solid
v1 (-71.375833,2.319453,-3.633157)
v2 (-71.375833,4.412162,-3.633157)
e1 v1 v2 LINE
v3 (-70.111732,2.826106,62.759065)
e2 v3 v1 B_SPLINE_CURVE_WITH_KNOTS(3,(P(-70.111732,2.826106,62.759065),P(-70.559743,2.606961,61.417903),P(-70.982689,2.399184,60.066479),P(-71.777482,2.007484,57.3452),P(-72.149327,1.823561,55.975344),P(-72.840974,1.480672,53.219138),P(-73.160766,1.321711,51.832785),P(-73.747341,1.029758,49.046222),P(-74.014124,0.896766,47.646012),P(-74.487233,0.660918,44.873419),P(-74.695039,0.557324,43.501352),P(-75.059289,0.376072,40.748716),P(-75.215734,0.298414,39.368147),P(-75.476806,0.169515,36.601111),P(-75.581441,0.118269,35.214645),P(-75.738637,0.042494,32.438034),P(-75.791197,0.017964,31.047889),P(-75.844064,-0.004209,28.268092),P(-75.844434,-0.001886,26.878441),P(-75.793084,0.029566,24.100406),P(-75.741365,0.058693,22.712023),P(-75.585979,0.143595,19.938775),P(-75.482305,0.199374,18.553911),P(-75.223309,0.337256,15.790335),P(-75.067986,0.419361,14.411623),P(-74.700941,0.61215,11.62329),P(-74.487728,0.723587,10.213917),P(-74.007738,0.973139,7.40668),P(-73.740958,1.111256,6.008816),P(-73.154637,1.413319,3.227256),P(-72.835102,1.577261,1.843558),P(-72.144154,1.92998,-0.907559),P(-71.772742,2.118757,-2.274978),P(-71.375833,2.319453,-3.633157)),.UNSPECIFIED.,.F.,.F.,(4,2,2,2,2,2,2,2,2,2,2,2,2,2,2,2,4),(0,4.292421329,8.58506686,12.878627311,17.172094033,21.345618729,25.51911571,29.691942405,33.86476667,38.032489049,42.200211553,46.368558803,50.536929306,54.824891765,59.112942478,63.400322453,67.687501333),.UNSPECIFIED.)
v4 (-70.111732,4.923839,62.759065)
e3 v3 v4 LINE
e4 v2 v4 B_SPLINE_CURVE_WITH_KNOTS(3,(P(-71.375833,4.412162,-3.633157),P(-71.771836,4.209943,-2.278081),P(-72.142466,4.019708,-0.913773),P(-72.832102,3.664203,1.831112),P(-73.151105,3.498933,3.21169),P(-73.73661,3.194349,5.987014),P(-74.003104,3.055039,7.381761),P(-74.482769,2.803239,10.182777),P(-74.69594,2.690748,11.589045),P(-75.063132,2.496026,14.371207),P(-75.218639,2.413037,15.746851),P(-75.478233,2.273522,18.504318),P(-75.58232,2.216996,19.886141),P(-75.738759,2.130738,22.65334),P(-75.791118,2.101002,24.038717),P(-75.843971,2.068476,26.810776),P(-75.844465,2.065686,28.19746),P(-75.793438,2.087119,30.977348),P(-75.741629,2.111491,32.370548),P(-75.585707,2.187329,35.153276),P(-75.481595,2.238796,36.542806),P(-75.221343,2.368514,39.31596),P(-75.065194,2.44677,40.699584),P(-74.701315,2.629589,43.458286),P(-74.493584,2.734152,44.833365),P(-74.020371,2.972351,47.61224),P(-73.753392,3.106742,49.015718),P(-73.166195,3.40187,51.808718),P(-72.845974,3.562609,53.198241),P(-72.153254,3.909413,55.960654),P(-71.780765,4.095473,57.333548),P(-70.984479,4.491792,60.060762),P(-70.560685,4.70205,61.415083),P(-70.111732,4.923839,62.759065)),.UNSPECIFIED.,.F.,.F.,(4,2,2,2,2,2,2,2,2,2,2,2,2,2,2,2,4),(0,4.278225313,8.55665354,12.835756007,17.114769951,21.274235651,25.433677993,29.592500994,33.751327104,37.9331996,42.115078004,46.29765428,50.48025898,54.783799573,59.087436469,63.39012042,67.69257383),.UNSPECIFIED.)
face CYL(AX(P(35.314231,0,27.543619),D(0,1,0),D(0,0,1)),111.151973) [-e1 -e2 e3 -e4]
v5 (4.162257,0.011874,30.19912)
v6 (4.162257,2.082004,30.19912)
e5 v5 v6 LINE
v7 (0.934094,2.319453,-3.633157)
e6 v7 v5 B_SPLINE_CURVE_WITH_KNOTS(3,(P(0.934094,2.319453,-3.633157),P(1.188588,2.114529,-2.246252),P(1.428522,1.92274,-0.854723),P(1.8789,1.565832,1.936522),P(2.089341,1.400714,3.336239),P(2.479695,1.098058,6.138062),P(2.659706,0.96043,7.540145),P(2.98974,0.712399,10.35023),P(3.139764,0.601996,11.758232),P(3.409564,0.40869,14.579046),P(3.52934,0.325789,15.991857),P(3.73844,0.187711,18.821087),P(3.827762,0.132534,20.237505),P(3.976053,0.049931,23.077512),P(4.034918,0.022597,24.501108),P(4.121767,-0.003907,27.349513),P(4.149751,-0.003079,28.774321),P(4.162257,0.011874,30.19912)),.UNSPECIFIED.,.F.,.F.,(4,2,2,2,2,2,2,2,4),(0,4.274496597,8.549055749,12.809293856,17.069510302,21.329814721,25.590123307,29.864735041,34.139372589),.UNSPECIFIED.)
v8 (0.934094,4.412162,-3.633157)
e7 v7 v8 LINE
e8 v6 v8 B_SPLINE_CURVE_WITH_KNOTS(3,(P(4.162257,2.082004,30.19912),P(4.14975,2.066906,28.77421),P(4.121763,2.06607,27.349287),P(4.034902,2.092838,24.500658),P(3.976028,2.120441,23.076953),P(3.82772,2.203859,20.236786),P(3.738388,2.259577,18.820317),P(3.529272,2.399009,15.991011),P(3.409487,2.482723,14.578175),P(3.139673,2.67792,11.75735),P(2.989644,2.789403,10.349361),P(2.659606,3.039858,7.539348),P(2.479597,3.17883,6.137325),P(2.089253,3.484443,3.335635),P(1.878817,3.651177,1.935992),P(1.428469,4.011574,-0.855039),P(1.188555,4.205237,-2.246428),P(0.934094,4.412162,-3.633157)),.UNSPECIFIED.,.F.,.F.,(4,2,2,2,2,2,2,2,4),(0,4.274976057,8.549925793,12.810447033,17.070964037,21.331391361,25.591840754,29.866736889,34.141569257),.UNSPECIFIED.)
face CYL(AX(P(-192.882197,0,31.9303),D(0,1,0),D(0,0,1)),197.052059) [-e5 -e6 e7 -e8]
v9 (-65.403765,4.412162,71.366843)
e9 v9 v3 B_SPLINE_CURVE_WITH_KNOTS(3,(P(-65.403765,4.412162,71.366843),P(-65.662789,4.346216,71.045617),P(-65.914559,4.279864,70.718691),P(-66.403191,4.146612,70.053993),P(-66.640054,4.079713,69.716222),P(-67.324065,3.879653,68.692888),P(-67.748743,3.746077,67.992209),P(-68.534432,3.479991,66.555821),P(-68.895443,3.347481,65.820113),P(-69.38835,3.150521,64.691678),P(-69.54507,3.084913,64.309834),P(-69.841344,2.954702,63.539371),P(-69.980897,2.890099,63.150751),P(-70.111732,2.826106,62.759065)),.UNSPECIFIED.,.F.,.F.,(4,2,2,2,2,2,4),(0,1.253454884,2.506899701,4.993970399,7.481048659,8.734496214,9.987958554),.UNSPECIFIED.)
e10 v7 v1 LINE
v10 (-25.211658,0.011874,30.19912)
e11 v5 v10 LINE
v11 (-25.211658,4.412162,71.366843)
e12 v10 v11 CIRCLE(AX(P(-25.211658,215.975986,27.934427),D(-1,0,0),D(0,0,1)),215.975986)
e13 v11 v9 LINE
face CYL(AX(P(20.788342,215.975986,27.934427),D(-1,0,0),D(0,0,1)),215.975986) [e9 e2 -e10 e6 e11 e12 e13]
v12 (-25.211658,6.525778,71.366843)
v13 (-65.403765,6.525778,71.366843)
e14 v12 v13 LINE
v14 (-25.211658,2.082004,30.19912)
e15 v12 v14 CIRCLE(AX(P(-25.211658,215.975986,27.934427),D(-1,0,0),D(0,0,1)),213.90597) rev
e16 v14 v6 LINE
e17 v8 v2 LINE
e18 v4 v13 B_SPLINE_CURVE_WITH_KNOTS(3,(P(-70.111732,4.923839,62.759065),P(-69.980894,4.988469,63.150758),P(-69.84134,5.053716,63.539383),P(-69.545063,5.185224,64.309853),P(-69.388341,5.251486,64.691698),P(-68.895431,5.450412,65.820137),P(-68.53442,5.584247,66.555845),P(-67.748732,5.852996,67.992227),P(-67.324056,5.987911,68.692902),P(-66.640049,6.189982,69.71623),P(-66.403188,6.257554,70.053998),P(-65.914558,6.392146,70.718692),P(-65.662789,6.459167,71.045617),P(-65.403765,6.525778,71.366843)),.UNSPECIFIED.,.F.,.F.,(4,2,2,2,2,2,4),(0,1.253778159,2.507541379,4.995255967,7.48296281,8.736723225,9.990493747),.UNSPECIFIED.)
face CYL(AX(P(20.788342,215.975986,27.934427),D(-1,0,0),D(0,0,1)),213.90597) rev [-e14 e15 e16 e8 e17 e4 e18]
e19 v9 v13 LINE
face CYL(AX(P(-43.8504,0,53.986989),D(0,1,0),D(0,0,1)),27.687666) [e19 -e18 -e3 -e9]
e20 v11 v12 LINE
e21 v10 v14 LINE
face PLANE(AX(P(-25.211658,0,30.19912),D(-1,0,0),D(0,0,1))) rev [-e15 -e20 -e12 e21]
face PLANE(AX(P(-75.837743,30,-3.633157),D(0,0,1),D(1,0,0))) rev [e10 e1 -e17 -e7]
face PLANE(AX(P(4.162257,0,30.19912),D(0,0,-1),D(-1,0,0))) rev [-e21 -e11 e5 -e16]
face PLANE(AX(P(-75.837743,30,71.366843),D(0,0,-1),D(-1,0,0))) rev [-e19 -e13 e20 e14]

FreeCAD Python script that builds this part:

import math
import FreeCAD as App
import Part
import Sketcher
Q = App.Units.Quantity


def add_polygon(sketch, points):
    """Adds a closed chain of lines whose ends are joined by coincident constraints."""
    first, n = sketch.GeometryCount, len(points)
    for a, b in zip(points, points[1:] + points[:1]):
        sketch.addGeometry(Part.LineSegment(App.Vector(*a, 0), App.Vector(*b, 0)), False)
    for i in range(n):
        sketch.addConstraint(Sketcher.Constraint("Coincident", first + i, 2, first + (i + 1) % n, 1))

doc = App.newDocument("Part")
params = doc.addObject("Spreadsheet::Sheet", "Params")
for row, (alias, value) in enumerate([
    ("sketch1_width", "80 mm"),
    ("sketch1_height", "75 mm"),
    ("pad1_length", "30 mm"),
    ("pocket1_length", "30 mm"),
], start=1):
    params.set(f"A{row}", alias)
    params.set(f"B{row}", "=" + value)
    params.setAlias(f"B{row}", alias)

body = doc.addObject("PartDesign::Body", "Body")

# Sketch on XZ plane
sketch1 = body.newObject("Sketcher::SketchObject", "Sketch")
sketch1.AttachmentSupport = (doc.getObject("XZ_Plane"), [""])
sketch1.MapMode = "FlatFace"
add_polygon(sketch1, [(-76, -4), (-76, 71), (4, 71), (4, -4)])  # lines 0-3
sketch1.addConstraint(Sketcher.Constraint("Vertical", 0))
sketch1.addConstraint(Sketcher.Constraint("Horizontal", 1))
sketch1.addConstraint(Sketcher.Constraint("Vertical", 2))
sketch1.addConstraint(Sketcher.Constraint("Horizontal", 3))
sketch1.addConstraint(Sketcher.Constraint("DistanceX", 1, 1, 1, 2, Q("80 mm")))
sketch1.addConstraint(Sketcher.Constraint("DistanceY", 0, 1, 0, 2, Q("75 mm")))
sketch1.addConstraint(Sketcher.Constraint("DistanceX", 0, 2, -1, 1, Q("75.837743 mm")))
sketch1.addConstraint(Sketcher.Constraint("DistanceY", -1, 1, 0, 2, Q("71.366843 mm")))
sketch1.setExpression("Constraints[8]", "Params.sketch1_width")
sketch1.setExpression("Constraints[9]", "Params.sketch1_height")
pad1 = body.newObject("PartDesign::Pad", "Pad")
pad1.Profile = sketch1
pad1.setExpression("Length", "Params.pad1_length")
pad1.Reversed = True

# Sketch on XZ plane
sketch2 = body.newObject("Sketcher::SketchObject", "Sketch001")
sketch2.AttachmentSupport = (doc.getObject("XZ_Plane"), [""])
sketch2.MapMode = "FlatFace"
sketch2.AttachmentOffset = App.Placement(App.Vector(0, 0, -30), App.Rotation())
sketch2.addGeometry(Part.LineSegment(App.Vector(-71, -4, 0), App.Vector(-109, -13, 0)), False)
sketch2.addGeometry(Part.LineSegment(App.Vector(-109, -13, 0), App.Vector(-126, 100, 0)), False)
sketch2.addGeometry(Part.LineSegment(App.Vector(-126, 100, 0), App.Vector(-11, 108, 0)), False)
sketch2.addGeometry(Part.LineSegment(App.Vector(-11, 108, 0), App.Vector(16, 76, 0)), False)
sketch2.addGeometry(Part.LineSegment(App.Vector(16, 76, 0), App.Vector(16, 32, 0)), False)
sketch2.addGeometry(Part.LineSegment(App.Vector(16, 32, 0), App.Vector(13, -8, 0)), False)
sketch2.addGeometry(Part.LineSegment(App.Vector(13, -8, 0), App.Vector(1, -4, 0)), False)
sketch2.addGeometry(Part.ArcOfCircle(Part.Circle(App.Vector(-193, 32, 0), App.Vector(0, 0, 1), 197), math.radians(-10.4), math.radians(-0.5)), False)
sketch2.addGeometry(Part.LineSegment(App.Vector(4, 30, 0), App.Vector(-25, 30, 0)), False)
sketch2.addGeometry(Part.LineSegment(App.Vector(-25, 30, 0), App.Vector(-25, 71, 0)), False)
sketch2.addGeometry(Part.LineSegment(App.Vector(-25, 71, 0), App.Vector(-65, 71, 0)), False)
sketch2.addGeometry(Part.ArcOfCircle(Part.Circle(App.Vector(-44, 54, 0), App.Vector(0, 0, 1), 28), math.radians(141), math.radians(162)), False)
sketch2.addGeometry(Part.ArcOfCircle(Part.Circle(App.Vector(35, 28, 0), App.Vector(0, 0, 1), 111), math.radians(162), math.radians(196)), False)
sketch2.addConstraint(Sketcher.Constraint("Coincident", 0, 2, 1, 1))
sketch2.addConstraint(Sketcher.Constraint("Coincident", 1, 2, 2, 1))
sketch2.addConstraint(Sketcher.Constraint("Coincident", 2, 2, 3, 1))
sketch2.addConstraint(Sketcher.Constraint("Coincident", 3, 2, 4, 1))
sketch2.addConstraint(Sketcher.Constraint("Coincident", 4, 2, 5, 1))
sketch2.addConstraint(Sketcher.Constraint("Coincident", 5, 2, 6, 1))
sketch2.addConstraint(Sketcher.Constraint("Coincident", 6, 2, 7, 1))
sketch2.addConstraint(Sketcher.Constraint("Coincident", 7, 2, 8, 1))
sketch2.addConstraint(Sketcher.Constraint("Coincident", 8, 2, 9, 1))
sketch2.addConstraint(Sketcher.Constraint("Coincident", 9, 2, 10, 1))
sketch2.addConstraint(Sketcher.Constraint("Coincident", 10, 2, 11, 1))
sketch2.addConstraint(Sketcher.Constraint("Tangent", 11, 2, 12, 1))
sketch2.addConstraint(Sketcher.Constraint("Coincident", 12, 2, 0, 1))
sketch2.addConstraint(Sketcher.Constraint("Vertical", 4))
sketch2.addConstraint(Sketcher.Constraint("Horizontal", 8))
sketch2.addConstraint(Sketcher.Constraint("Vertical", 9))
sketch2.addConstraint(Sketcher.Constraint("Horizontal", 10))
sketch2.addConstraint(Sketcher.Constraint("Horizontal", 6, 2, 12, 2))
sketch2.addConstraint(Sketcher.Constraint("Radius", 7, Q("197.052059 mm")))
sketch2.addConstraint(Sketcher.Constraint("Radius", 11, Q("27.687666 mm")))
sketch2.addConstraint(Sketcher.Constraint("Radius", 12, Q("111.151973 mm")))
sketch2.addConstraint(Sketcher.Constraint("DistanceY", 4, 2, 4, 1, Q("43.284662 mm")))
sketch2.addConstraint(Sketcher.Constraint("DistanceY", -1, 1, 7, 3, Q("31.9303 mm")))
sketch2.addConstraint(Sketcher.Constraint("DistanceX", 11, 3, -1, 1, Q("43.8504 mm")))
sketch2.addConstraint(Sketcher.Constraint("DistanceY", -1, 1, 1, 2, Q("100.3701 mm")))
sketch2.addConstraint(Sketcher.Constraint("DistanceX", 1, 2, 12, 3, Q("160.898801 mm")))
sketch2.addConstraint(Sketcher.Constraint("DistanceY", 0, 2, 3, 2, Q("88.953402 mm")))
sketch2.addConstraint(Sketcher.Constraint("DistanceY", 5, 2, 11, 3, Q("62.083302 mm")))
sketch2.addConstraint(Sketcher.Constraint("DistanceY", 12, 3, 7, 2, Q("2.655501 mm")))
sketch2.addConstraint(Sketcher.Constraint("DistanceX", 8, 2, 4, 2, Q("41.253899 mm")))
sketch2.addConstraint(Sketcher.Constraint("DistanceX", 12, 2, 11, 2, Q("1.264102 mm")))
sketch2.addConstraint(Sketcher.Constraint("Distance", 1, Q("115.019781 mm")))
sketch2.addConstraint(Sketcher.Constraint("Distance", 2, Q("114.896609 mm")))
sketch2.addConstraint(Sketcher.Constraint("Distance", 6, Q("13.024879 mm")))
sketch2.addConstraint(Sketcher.Constraint("DistanceX", 8, 2, 8, 1, Q("29.373916 mm")))
sketch2.addConstraint(Sketcher.Constraint("DistanceX", 10, 2, 10, 1, Q("40.192106 mm")))
sketch2.addConstraint(Sketcher.Constraint("DistanceY", 9, 1, 9, 2, Q("41.167724 mm")))
sketch2.addConstraint(Sketcher.Constraint("DistanceY", -1, 1, 11, 3, Q("53.986989 mm")))
sketch2.addConstraint(Sketcher.Constraint("DistanceX", -1, 1, 12, 3, Q("35.314231 mm")))
sketch2.addConstraint(Sketcher.Constraint("DistanceY", 0, 2, -1, 1, Q("13.421491 mm")))
sketch2.addConstraint(Sketcher.Constraint("DistanceY", 5, 2, 2, 2, Q("115.765218 mm")))
pocket1 = body.newObject("PartDesign::Pocket", "Pocket")
pocket1.Profile = sketch2
pocket1.setExpression("Length", "Params.pocket1_length")
pocket1.Reversed = True

# Sketch on YZ plane
sketch3 = body.newObject("Sketcher::SketchObject", "Sketch002")
sketch3.AttachmentSupport = (doc.getObject("YZ_Plane"), [""])
sketch3.MapMode = "FlatFace"
sketch3.AttachmentOffset = App.Placement(App.Vector(0, 0, -25.211658), App.Rotation())
sketch3.addGeometry(Part.LineSegment(App.Vector(4.412162, -3.633157, 0), App.Vector(63.394579, -25.866455, 0)), False)
sketch3.addGeometry(Part.LineSegment(App.Vector(63.394579, -25.866455, 0), App.Vector(84.334388, 68.187233, 0)), False)
sketch3.addGeometry(Part.LineSegment(App.Vector(84.334388, 68.187233, 0), App.Vector(46.854352, 84.699419, 0)), False)
sketch3.addGeometry(Part.LineSegment(App.Vector(46.854352, 84.699419, 0), App.Vector(32.16886, 91.169251, 0)), False)
sketch3.addGeometry(Part.LineSegment(App.Vector(32.16886, 91.169251, 0), App.Vector(-15.478263, 79.899922, 0)), False)
sketch3.addGeometry(Part.LineSegment(App.Vector(-15.478263, 79.899922, 0), App.Vector(-37.061233, -10.487341, 0)), False)
sketch3.addGeometry(Part.LineSegment(App.Vector(-37.061233, -10.487341, 0), App.Vector(2.319453, -3.633157, 0)), False)
sketch3.addGeometry(Part.ArcOfCircle(Part.Circle(App.Vector(215.975986, 27.934427, 0), App.Vector(0, 0, 1), 215.975986), math.radians(168.398805), math.radians(188.404601)), False)
sketch3.addGeometry(Part.LineSegment(App.Vector(4.412162, 71.366843, 0), App.Vector(5.869987, 77.914842, 0)), False)
sketch3.addGeometry(Part.LineSegment(App.Vector(5.869987, 77.914842, 0), App.Vector(6.525778, 71.366843, 0)), False)
sketch3.addGeometry(Part.ArcOfCircle(Part.Circle(App.Vector(215.975986, 27.934427, 0), App.Vector(0, 0, 1), 213.90597), math.radians(168.284954), math.radians(188.486532)), False)
sketch3.addConstraint(Sketcher.Constraint("Coincident", 0, 2, 1, 1))
sketch3.addConstraint(Sketcher.Constraint("Coincident", 1, 2, 2, 1))
sketch3.addConstraint(Sketcher.Constraint("Coincident", 2, 2, 3, 1))
sketch3.addConstraint(Sketcher.Constraint("Coincident", 3, 2, 4, 1))
sketch3.addConstraint(Sketcher.Constraint("Coincident", 4, 2, 5, 1))
sketch3.addConstraint(Sketcher.Constraint("Coincident", 5, 2, 6, 1))
sketch3.addConstraint(Sketcher.Constraint("Coincident", 6, 2, 7, 2))
sketch3.addConstraint(Sketcher.Constraint("Coincident", 7, 1, 8, 1))
sketch3.addConstraint(Sketcher.Constraint("Coincident", 8, 2, 9, 1))
sketch3.addConstraint(Sketcher.Constraint("Coincident", 9, 2, 10, 1))
sketch3.addConstraint(Sketcher.Constraint("Coincident", 10, 2, 0, 1))
sketch3.addConstraint(Sketcher.Constraint("Coincident", 10, 3, 7, 3))
sketch3.addConstraint(Sketcher.Constraint("DistanceY", 6, 2, 7, 1, Q("75 mm")))
sketch3.addConstraint(Sketcher.Constraint("DistanceY", 10, 2, 7, 1, Q("75 mm")))
sketch3.addConstraint(Sketcher.Constraint("DistanceY", 10, 2, 9, 2, Q("75 mm")))
sketch3.addConstraint(Sketcher.Constraint("Radius", 10, Q("213.90597 mm")))
sketch3.addConstraint(Sketcher.Constraint("Radius", 7, Q("215.975986 mm")))
sketch3.addConstraint(Sketcher.Constraint("DistanceY", 7, 1, 8, 2, Q("6.547999 mm")))
sketch3.addConstraint(Sketcher.Constraint("DistanceY", 0, 2, 6, 2, Q("22.233298 mm")))
sketch3.addConstraint(Sketcher.Constraint("DistanceX", 6, 2, 2, 2, Q("44.534899 mm")))
sketch3.addConstraint(Sketcher.Constraint("DistanceX", 7, 1, 3, 2, Q("27.756699 mm")))
sketch3.addConstraint(Sketcher.Constraint("DistanceX", 8, 2, 1, 2, Q("78.464401 mm")))
sketch3.addConstraint(Sketcher.Constraint("Distance", 2, Q("40.95614 mm")))
sketch3.addConstraint(Sketcher.Constraint("Distance", 4, Q("48.96168 mm")))
sketch3.addConstraint(Sketcher.Constraint("Distance", 5, Q("92.92837 mm")))
sketch3.addConstraint(Sketcher.Constraint("Distance", 6, Q("39.972719 mm")))
sketch3.addConstraint(Sketcher.Constraint("Distance", 8, Q("6.708319 mm")))
sketch3.addConstraint(Sketcher.Constraint("DistanceX", -1, 1, 0, 2, Q("63.394579 mm")))
sketch3.addConstraint(Sketcher.Constraint("DistanceX", -1, 1, 1, 2, Q("84.334388 mm")))
sketch3.addConstraint(Sketcher.Constraint("DistanceX", -1, 1, 2, 2, Q("46.854352 mm")))
sketch3.addConstraint(Sketcher.Constraint("DistanceY", -1, 1, 2, 2, Q("84.699419 mm")))
sketch3.addConstraint(Sketcher.Constraint("DistanceY", -1, 1, 3, 2, Q("91.169251 mm")))
sketch3.addConstraint(Sketcher.Constraint("DistanceY", -1, 1, 4, 2, Q("79.899922 mm")))
sketch3.addConstraint(Sketcher.Constraint("DistanceY", 5, 2, -1, 1, Q("10.487341 mm")))
pocket2 = body.newObject("PartDesign::Pocket", "Pocket001")
pocket2.Profile = sketch3
pocket2.Type = "ThroughAll"
pocket2.Midplane = True

doc.recompute()
